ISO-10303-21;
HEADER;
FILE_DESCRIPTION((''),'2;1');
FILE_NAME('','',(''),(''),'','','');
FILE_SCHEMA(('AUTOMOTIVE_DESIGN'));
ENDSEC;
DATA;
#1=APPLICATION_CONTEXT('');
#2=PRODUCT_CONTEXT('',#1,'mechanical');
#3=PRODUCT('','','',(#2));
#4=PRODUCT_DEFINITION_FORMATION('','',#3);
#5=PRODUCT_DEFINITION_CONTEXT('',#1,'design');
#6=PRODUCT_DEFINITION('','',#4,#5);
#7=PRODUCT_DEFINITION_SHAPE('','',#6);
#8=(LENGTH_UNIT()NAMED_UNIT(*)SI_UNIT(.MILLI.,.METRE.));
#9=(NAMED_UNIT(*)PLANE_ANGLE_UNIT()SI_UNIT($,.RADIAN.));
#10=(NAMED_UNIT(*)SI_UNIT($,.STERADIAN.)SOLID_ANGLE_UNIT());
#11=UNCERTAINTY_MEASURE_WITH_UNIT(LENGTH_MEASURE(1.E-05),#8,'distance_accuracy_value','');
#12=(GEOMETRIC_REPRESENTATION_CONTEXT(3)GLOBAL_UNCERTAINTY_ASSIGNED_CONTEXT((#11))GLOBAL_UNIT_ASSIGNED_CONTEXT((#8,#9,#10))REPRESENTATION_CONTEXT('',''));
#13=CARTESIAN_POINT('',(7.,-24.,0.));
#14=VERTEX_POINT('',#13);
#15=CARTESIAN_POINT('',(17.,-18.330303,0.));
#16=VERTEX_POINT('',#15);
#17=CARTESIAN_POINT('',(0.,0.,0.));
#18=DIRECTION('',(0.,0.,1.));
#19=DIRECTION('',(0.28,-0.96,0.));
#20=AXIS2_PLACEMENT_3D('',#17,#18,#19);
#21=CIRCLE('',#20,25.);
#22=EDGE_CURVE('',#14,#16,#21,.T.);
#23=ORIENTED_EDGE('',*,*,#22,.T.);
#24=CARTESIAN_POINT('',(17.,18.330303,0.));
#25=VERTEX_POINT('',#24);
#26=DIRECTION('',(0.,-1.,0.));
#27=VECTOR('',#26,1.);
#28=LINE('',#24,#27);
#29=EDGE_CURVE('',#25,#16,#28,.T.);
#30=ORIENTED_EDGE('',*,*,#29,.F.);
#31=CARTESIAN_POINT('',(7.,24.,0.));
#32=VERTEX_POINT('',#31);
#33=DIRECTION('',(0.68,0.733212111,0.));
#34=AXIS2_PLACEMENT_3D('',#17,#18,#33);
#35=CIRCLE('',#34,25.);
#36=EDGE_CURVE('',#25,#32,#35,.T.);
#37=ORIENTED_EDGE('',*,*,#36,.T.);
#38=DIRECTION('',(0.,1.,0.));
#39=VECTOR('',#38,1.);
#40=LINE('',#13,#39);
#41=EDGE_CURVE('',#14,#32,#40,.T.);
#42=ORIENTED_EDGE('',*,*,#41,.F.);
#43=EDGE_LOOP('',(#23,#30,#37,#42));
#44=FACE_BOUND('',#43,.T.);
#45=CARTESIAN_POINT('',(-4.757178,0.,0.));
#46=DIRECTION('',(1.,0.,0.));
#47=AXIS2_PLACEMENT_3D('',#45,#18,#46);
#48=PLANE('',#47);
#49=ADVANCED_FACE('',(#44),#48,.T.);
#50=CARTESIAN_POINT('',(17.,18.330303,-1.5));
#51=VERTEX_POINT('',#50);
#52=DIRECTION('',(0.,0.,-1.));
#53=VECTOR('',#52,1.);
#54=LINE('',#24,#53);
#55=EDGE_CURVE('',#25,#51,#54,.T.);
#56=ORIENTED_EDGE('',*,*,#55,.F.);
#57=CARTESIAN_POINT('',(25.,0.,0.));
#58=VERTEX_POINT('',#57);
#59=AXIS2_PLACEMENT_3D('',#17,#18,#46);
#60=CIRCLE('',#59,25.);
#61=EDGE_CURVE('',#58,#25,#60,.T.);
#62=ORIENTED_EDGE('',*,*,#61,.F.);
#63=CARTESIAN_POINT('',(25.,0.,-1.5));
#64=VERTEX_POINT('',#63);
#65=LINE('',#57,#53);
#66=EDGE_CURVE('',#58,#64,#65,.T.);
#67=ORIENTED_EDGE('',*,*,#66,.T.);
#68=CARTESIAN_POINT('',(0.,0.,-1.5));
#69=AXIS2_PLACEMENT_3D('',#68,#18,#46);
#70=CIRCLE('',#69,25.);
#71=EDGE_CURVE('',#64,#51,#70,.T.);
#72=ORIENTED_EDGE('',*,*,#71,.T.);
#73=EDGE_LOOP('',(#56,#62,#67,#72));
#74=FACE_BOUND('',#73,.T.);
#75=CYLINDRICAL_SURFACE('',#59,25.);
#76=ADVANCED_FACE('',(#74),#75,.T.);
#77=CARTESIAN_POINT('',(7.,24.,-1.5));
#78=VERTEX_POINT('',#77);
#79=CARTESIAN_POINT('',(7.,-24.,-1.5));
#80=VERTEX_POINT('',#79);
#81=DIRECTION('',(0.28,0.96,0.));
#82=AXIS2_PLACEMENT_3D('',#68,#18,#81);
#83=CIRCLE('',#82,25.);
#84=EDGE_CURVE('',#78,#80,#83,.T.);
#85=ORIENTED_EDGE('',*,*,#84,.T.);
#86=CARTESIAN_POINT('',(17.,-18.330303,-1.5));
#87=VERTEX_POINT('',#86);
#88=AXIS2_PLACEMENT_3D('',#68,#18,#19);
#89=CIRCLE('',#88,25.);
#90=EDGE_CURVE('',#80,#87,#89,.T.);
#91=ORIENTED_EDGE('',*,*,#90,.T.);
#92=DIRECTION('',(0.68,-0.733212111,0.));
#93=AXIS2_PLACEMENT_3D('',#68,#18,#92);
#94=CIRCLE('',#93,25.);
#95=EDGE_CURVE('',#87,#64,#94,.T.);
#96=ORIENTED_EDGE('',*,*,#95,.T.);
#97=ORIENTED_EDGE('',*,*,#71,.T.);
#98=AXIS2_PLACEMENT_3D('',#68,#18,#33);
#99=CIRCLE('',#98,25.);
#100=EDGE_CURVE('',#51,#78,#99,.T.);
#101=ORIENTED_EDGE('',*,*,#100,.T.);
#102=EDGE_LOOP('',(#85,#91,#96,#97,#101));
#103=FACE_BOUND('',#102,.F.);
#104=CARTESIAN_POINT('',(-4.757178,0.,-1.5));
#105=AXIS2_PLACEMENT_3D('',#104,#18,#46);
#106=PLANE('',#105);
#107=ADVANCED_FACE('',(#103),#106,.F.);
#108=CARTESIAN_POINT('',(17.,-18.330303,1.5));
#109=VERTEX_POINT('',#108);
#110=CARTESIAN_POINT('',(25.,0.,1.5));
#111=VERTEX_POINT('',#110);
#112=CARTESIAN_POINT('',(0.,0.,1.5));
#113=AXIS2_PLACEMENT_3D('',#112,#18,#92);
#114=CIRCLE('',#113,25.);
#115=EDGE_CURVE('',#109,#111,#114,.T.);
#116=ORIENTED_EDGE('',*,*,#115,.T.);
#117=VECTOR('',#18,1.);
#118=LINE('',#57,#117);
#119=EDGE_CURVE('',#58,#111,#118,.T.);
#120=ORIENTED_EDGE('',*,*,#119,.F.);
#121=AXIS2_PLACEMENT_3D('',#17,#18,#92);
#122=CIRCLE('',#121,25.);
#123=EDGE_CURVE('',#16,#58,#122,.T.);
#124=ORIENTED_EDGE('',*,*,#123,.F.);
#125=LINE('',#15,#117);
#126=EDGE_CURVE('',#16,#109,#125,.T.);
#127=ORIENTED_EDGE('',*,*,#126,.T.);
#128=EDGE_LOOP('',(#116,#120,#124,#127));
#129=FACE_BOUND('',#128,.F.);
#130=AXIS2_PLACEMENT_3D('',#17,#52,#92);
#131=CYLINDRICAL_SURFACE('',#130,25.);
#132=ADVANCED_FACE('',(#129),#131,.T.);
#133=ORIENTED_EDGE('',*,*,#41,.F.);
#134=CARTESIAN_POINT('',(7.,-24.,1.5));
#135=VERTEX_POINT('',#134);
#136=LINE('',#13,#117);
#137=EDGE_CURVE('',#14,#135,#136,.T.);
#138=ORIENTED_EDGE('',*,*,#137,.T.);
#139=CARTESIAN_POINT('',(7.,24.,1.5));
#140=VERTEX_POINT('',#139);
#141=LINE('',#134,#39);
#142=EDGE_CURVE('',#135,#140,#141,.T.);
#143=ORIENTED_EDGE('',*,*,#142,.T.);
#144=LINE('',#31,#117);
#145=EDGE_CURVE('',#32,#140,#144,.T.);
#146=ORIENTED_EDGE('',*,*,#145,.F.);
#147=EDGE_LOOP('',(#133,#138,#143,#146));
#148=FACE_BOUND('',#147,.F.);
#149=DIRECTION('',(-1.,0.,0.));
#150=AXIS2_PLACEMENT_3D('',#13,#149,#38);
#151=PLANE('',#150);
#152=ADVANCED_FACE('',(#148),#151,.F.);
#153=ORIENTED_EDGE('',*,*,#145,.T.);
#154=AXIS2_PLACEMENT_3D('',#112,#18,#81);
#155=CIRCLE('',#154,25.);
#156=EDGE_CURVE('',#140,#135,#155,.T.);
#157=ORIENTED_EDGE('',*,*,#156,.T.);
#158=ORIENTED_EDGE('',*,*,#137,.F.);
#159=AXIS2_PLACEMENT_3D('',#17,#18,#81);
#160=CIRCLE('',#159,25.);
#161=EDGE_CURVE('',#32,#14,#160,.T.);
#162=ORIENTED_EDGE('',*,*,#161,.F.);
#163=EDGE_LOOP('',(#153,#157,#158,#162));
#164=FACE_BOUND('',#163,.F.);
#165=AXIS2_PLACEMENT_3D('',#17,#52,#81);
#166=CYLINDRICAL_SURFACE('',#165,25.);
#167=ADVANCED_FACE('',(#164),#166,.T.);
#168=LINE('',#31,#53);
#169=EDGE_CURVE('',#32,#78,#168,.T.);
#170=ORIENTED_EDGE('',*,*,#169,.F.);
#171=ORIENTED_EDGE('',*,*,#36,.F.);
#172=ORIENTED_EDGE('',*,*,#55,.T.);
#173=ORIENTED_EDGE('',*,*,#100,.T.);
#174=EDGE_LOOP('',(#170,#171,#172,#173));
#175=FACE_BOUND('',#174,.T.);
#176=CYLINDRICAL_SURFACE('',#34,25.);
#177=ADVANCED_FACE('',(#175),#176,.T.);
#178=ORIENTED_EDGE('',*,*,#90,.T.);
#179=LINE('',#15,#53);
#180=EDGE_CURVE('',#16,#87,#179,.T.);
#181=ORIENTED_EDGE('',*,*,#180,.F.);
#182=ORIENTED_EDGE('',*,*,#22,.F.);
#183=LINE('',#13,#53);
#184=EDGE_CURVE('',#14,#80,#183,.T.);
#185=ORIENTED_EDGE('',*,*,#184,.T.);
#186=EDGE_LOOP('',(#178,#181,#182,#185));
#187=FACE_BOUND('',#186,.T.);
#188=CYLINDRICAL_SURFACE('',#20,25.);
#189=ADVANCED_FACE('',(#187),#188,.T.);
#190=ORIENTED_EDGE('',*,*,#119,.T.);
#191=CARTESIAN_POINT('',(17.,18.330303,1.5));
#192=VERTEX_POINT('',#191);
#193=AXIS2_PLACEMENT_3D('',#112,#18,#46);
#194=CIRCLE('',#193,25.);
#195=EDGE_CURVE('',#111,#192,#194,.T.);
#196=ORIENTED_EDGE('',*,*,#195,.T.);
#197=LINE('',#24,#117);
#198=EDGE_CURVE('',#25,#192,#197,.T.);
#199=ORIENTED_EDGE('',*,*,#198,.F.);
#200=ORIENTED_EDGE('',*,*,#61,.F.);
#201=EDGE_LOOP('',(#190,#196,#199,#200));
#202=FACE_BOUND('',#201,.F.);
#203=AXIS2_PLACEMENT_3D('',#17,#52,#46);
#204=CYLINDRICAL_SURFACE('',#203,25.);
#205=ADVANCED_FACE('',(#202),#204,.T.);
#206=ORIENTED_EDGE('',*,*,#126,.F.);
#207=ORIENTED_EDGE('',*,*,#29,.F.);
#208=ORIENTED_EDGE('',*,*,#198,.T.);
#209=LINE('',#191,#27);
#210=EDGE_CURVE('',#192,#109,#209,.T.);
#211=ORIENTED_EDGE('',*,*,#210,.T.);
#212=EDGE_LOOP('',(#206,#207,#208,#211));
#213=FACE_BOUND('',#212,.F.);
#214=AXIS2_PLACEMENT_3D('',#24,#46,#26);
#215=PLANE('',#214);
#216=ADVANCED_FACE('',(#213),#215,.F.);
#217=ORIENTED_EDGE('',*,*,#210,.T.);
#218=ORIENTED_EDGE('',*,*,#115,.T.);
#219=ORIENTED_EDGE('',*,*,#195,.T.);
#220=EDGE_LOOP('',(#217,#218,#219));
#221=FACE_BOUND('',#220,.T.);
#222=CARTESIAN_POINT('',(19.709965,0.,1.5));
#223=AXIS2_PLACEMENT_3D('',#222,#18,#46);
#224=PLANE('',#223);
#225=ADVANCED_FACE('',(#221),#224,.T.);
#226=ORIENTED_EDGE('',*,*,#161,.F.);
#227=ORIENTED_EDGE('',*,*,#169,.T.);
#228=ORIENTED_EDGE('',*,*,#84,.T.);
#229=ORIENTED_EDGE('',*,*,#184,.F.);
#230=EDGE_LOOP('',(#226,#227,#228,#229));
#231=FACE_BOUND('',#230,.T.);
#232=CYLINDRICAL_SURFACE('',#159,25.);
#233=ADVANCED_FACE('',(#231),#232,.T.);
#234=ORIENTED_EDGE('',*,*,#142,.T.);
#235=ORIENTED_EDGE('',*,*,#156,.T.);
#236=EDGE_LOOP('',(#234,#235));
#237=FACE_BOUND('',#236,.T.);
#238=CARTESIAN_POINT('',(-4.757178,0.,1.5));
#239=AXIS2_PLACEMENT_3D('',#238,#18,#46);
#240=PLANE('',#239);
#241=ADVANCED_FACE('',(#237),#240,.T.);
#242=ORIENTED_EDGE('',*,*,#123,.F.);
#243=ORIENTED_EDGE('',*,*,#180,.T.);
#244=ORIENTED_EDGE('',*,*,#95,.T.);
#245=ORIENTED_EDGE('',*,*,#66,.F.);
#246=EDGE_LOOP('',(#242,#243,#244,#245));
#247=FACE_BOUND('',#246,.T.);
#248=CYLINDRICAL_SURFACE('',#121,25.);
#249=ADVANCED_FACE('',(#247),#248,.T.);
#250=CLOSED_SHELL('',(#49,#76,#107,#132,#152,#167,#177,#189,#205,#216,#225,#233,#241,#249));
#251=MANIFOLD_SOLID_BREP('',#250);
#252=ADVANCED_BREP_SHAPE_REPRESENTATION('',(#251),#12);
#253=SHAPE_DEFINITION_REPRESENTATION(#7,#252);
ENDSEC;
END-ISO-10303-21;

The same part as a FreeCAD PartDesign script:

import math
import FreeCAD as App
import Part
import Sketcher

V = App.Vector

doc = App.newDocument("Part")
body = doc.addObject("PartDesign::Body", "Body")

sketch1 = body.newObject("Sketcher::SketchObject", "Sketch")
sketch1.AttachmentSupport = (doc.getObject("XY_Plane"), [""])
sketch1.MapMode = "FlatFace"
sketch1.addGeometry(Part.ArcOfCircle(Part.Circle(V(0, 0, 0), V(0, 0, 1), 25), math.radians(73.739795), math.radians(286.260205)), False)
sketch1.addGeometry(Part.ArcOfCircle(Part.Circle(V(0, 0, 0), V(0, 0, 1), 25), math.radians(-73.739795), math.radians(-47.156357)), False)
sketch1.addGeometry(Part.ArcOfCircle(Part.Circle(V(0, 0, 0), V(0, 0, 1), 25), math.radians(-47.156357), math.radians(0)), False)
sketch1.addGeometry(Part.ArcOfCircle(Part.Circle(V(0, 0, 0), V(0, 0, 1), 25), math.radians(0), math.radians(47.156357)), False)
sketch1.addGeometry(Part.ArcOfCircle(Part.Circle(V(0, 0, 0), V(0, 0, 1), 25), math.radians(47.156357), math.radians(73.739795)), False)
sketch1.addConstraint(Sketcher.Constraint("Tangent", 0, 2, 1, 1))
sketch1.addConstraint(Sketcher.Constraint("Tangent", 1, 2, 2, 1))
sketch1.addConstraint(Sketcher.Constraint("Tangent", 2, 2, 3, 1))
sketch1.addConstraint(Sketcher.Constraint("Tangent", 3, 2, 4, 1))
sketch1.addConstraint(Sketcher.Constraint("Tangent", 4, 2, 0, 1))
sketch1.addConstraint(Sketcher.Constraint("Coincident", 0, 3, -1, 1))
sketch1.addConstraint(Sketcher.Constraint("Coincident", 2, 3, -1, 1))
sketch1.addConstraint(Sketcher.Constraint("PointOnObject", 2, 2, -1))
sketch1.addConstraint(Sketcher.Constraint("Vertical", 1, 2, 3, 2))
sketch1.addConstraint(Sketcher.Constraint("Vertical", 0, 2, 4, 2))
sketch1.addConstraint(Sketcher.Constraint("Radius", 0, 25.0))
sketch1.addConstraint(Sketcher.Constraint("DistanceX", -1, 1, 0, 2, 7.0))
sketch1.addConstraint(Sketcher.Constraint("DistanceX", -1, 1, 1, 2, 17.0))
pad1 = body.newObject("PartDesign::Pad", "Pad")
pad1.Profile = sketch1
pad1.Length = 1.5
pad1.Reversed = True

sketch2 = body.newObject("Sketcher::SketchObject", "Sketch001")
sketch2.AttachmentSupport = (doc.getObject("XY_Plane"), [""])
sketch2.MapMode = "FlatFace"
sketch2.addGeometry(Part.ArcOfCircle(Part.Circle(V(0, 0, 0), V(0, 0, 1), 25), math.radians(-47.156357), math.radians(0)), False)
sketch2.addGeometry(Part.ArcOfCircle(Part.Circle(V(0, 0, 0), V(0, 0, 1), 25), math.radians(0), math.radians(47.156357)), False)
sketch2.addGeometry(Part.LineSegment(V(17, 18.330303, 0), V(17, -18.330303, 0)), False)
sketch2.addGeometry(Part.LineSegment(V(7, -24, 0), V(7, 24, 0)), False)
sketch2.addGeometry(Part.ArcOfCircle(Part.Circle(V(0, 0, 0), V(0, 0, 1), 25), math.radians(73.739795), math.radians(286.260205)), False)
sketch2.addConstraint(Sketcher.Constraint("Tangent", 0, 2, 1, 1))
sketch2.addConstraint(Sketcher.Constraint("Coincident", 1, 2, 2, 1))
sketch2.addConstraint(Sketcher.Constraint("Coincident", 2, 2, 0, 1))
sketch2.addConstraint(Sketcher.Constraint("Coincident", 3, 1, 4, 2))
sketch2.addConstraint(Sketcher.Constraint("Coincident", 4, 1, 3, 2))
sketch2.addConstraint(Sketcher.Constraint("Vertical", 2))
sketch2.addConstraint(Sketcher.Constraint("Vertical", 3))
sketch2.addConstraint(Sketcher.Constraint("Coincident", 0, 3, -1, 1))
sketch2.addConstraint(Sketcher.Constraint("Coincident", 4, 3, -1, 1))
sketch2.addConstraint(Sketcher.Constraint("Equal", 0, 1))
sketch2.addConstraint(Sketcher.Constraint("Equal", 1, 4))
sketch2.addConstraint(Sketcher.Constraint("PointOnObject", 0, 2, -1))
sketch2.addConstraint(Sketcher.Constraint("Radius", 0, 25.0))
sketch2.addConstraint(Sketcher.Constraint("DistanceY", 3, 1, 3, 2, 48.0))
sketch2.addConstraint(Sketcher.Constraint("DistanceX", -1, 1, 1, 2, 17.0))
pad2 = body.newObject("PartDesign::Pad", "Pad001")
pad2.Profile = sketch2
pad2.Length = 1.5

doc.recompute()
